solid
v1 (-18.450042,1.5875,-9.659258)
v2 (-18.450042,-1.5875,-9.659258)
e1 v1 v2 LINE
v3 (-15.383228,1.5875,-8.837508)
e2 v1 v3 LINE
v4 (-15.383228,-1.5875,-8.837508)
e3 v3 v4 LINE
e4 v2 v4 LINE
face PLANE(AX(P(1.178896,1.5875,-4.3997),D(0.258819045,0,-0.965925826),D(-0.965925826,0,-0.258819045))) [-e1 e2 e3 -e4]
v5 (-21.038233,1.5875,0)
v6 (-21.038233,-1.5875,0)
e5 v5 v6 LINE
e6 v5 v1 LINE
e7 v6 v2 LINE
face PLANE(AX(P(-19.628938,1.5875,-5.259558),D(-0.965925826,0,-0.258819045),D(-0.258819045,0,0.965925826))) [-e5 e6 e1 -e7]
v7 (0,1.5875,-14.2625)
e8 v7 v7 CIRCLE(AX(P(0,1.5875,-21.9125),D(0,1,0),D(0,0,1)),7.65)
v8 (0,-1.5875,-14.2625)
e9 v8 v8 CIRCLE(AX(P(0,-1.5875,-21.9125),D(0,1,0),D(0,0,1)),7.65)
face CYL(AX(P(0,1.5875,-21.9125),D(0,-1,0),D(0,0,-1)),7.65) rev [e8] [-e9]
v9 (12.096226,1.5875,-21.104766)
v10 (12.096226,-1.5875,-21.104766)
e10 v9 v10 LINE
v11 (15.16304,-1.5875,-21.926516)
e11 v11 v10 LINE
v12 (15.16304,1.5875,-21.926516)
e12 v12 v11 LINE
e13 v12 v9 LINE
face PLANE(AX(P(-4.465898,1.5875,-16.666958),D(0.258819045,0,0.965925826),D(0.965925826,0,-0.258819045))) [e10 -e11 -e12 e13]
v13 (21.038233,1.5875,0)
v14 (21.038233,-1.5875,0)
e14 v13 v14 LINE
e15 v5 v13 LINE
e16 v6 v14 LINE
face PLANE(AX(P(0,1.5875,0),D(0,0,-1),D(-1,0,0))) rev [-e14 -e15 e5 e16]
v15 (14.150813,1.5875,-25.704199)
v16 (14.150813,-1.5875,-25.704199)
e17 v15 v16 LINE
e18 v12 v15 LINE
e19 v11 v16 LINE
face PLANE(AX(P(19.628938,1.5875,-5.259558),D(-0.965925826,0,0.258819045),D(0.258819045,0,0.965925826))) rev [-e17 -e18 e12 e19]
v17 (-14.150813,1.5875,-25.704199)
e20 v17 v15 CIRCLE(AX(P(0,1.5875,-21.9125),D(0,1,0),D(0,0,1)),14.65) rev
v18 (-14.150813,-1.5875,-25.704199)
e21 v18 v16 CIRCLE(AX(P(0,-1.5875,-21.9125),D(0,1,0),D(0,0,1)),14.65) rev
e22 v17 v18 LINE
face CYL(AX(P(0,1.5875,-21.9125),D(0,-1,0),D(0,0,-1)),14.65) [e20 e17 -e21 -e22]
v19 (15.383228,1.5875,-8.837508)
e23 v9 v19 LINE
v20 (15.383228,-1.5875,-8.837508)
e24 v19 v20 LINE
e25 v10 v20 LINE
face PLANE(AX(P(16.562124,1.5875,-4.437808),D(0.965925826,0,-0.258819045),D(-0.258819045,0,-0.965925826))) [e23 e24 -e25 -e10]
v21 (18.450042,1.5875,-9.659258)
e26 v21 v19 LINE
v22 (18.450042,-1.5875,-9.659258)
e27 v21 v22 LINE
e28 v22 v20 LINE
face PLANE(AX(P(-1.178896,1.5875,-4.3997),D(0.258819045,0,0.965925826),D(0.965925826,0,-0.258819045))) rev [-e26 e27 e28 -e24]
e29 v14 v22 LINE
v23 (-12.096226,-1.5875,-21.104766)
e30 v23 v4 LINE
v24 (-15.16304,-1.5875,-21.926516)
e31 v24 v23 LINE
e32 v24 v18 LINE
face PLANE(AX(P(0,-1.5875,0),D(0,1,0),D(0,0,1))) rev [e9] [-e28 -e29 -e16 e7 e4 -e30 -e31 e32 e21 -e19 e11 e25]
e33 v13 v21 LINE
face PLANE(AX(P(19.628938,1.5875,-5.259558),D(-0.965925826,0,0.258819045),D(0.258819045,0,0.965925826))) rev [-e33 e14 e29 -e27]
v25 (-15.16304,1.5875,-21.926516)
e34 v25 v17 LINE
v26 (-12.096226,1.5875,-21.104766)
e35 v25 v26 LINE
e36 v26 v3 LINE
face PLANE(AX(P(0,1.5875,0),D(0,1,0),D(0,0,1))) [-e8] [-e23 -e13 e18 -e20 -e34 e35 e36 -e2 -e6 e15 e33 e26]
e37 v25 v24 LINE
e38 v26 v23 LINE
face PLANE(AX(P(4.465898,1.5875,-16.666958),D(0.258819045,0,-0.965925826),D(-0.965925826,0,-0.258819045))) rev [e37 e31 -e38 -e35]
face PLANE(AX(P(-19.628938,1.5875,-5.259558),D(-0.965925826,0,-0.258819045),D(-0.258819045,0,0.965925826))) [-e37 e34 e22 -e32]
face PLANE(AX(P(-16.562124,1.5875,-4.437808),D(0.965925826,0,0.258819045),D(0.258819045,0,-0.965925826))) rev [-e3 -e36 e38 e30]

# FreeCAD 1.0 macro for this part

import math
import FreeCAD as App
import Part
import Sketcher

V = App.Vector
Q = App.Units.Quantity

doc = App.newDocument("Part")
body = doc.addObject("PartDesign::Body", "Body")

sketch1 = doc.addObject("Sketcher::SketchObject", "Sketch")
body.addObject(sketch1)
sketch1.AttachmentSupport = (doc.XZ_Plane, [""])
sketch1.MapMode = "FlatFace"
sketch1.addGeometry(Part.LineSegment(V(-18.5, -9.7, 0), V(-21, 0, 0)), False)
sketch1.addGeometry(Part.LineSegment(V(-21, 0, 0), V(21, 0, 0)), False)
sketch1.addGeometry(Part.LineSegment(V(21, 0, 0), V(18.5, -9.7, 0)), False)
sketch1.addGeometry(Part.LineSegment(V(18.5, -9.7, 0), V(15.4, -8.8, 0)), False)
sketch1.addGeometry(Part.LineSegment(V(15.4, -8.8, 0), V(12.1, -21.1, 0)), False)
sketch1.addGeometry(Part.LineSegment(V(12.1, -21.1, 0), V(15.2, -21.9, 0)), False)
sketch1.addGeometry(Part.LineSegment(V(15.2, -21.9, 0), V(14.2, -25.7, 0)), False)
sketch1.addGeometry(Part.ArcOfCircle(Part.Circle(V(0, -21.9, 0), V(0, 0, 1), 14.7), math.radians(-165), math.radians(-15)), False)
sketch1.addGeometry(Part.LineSegment(V(-14.2, -25.7, 0), V(-15.2, -21.9, 0)), False)
sketch1.addGeometry(Part.LineSegment(V(-15.2, -21.9, 0), V(-12.1, -21.1, 0)), False)
sketch1.addGeometry(Part.LineSegment(V(-12.1, -21.1, 0), V(-15.4, -8.8, 0)), False)
sketch1.addGeometry(Part.LineSegment(V(-15.4, -8.8, 0), V(-18.5, -9.7, 0)), False)
sketch1.addGeometry(Part.Circle(V(0, -21.9, 0), V(0, 0, 1), 7.7), False)
sketch1.addConstraint(Sketcher.Constraint("Coincident", 0, 2, 1, 1))
sketch1.addConstraint(Sketcher.Constraint("Coincident", 1, 2, 2, 1))
sketch1.addConstraint(Sketcher.Constraint("Coincident", 2, 2, 3, 1))
sketch1.addConstraint(Sketcher.Constraint("Coincident", 3, 2, 4, 1))
sketch1.addConstraint(Sketcher.Constraint("Coincident", 4, 2, 5, 1))
sketch1.addConstraint(Sketcher.Constraint("Coincident", 5, 2, 6, 1))
sketch1.addConstraint(Sketcher.Constraint("Tangent", 6, 2, 7, 2))
sketch1.addConstraint(Sketcher.Constraint("Tangent", 7, 1, 8, 1))
sketch1.addConstraint(Sketcher.Constraint("Coincident", 8, 2, 9, 1))
sketch1.addConstraint(Sketcher.Constraint("Coincident", 9, 2, 10, 1))
sketch1.addConstraint(Sketcher.Constraint("Coincident", 10, 2, 11, 1))
sketch1.addConstraint(Sketcher.Constraint("Coincident", 11, 2, 0, 1))
sketch1.addConstraint(Sketcher.Constraint("Horizontal", 1))
sketch1.addConstraint(Sketcher.Constraint("Coincident", 12, 3, 7, 3))
sketch1.addConstraint(Sketcher.Constraint("Symmetric", 0, 2, 1, 2, -1, 1))
sketch1.addConstraint(Sketcher.Constraint("Symmetric", 6, 2, 7, 1, -2))
sketch1.addConstraint(Sketcher.Constraint("Symmetric", 4, 2, 9, 2, -2))
sketch1.addConstraint(Sketcher.Constraint("Symmetric", 3, 2, 10, 2, -2))
sketch1.addConstraint(Sketcher.Constraint("Symmetric", 2, 2, 11, 2, -2))
sketch1.addConstraint(Sketcher.Constraint("Perpendicular", 2, 3))
sketch1.addConstraint(Sketcher.Constraint("Perpendicular", 3, 4))
sketch1.addConstraint(Sketcher.Constraint("Perpendicular", 4, 5))
sketch1.addConstraint(Sketcher.Constraint("Perpendicular", 5, 6))
sketch1.addConstraint(Sketcher.Constraint("Perpendicular", 8, 9))
sketch1.addConstraint(Sketcher.Constraint("Equal", 3, 5))
sketch1.addConstraint(Sketcher.Constraint("Diameter", 12, 15.3))
sketch1.addConstraint(Sketcher.Constraint("Angle", 0, Q("105 deg")))
sketch1.addConstraint(Sketcher.Constraint("Radius", 7, 14.65))
sketch1.addConstraint(Sketcher.Constraint("Distance", 0, 10.0))
sketch1.addConstraint(Sketcher.Constraint("Distance", 4, 12.7))
sketch1.addConstraint(Sketcher.Constraint("Distance", 3, 3.175))
sketch1.addConstraint(Sketcher.Constraint("DistanceY", 7, 3, -1, 1, 21.9125))
pad1 = doc.addObject("PartDesign::Pad", "Pad")
body.addObject(pad1)
pad1.Profile = sketch1
pad1.Length = 3.175
pad1.Midplane = True

doc.recompute()
